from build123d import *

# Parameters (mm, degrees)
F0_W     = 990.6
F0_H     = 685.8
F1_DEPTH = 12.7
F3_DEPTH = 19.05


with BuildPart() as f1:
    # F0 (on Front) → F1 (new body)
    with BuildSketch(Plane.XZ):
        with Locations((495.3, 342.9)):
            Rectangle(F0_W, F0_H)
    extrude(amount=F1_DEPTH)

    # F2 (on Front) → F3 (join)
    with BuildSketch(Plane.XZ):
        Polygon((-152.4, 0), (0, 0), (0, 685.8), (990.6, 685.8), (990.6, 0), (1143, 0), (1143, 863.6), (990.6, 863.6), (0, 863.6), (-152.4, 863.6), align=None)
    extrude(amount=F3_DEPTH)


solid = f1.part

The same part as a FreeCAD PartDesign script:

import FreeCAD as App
import Part
import Sketcher
from FreeCAD import Vector
Q = App.Units.Quantity

doc = App.newDocument("Part")
body = doc.addObject("PartDesign::Body", "Body")

sketch1 = body.newObject("Sketcher::SketchObject", "Sketch")
sketch1.AttachmentSupport = (doc.getObject("XZ_Plane"), [""])
sketch1.MapMode = "FlatFace"
sketch1.addGeometry([
    Part.LineSegment(Vector(0, 686, 0), Vector(0, 0, 0)),
    Part.LineSegment(Vector(0, 0, 0), Vector(991, 0, 0)),
    Part.LineSegment(Vector(991, 0, 0), Vector(991, 686, 0)),
    Part.LineSegment(Vector(991, 686, 0), Vector(0, 686, 0)),
], False)
sketch1.addConstraint([
    Sketcher.Constraint("Coincident", 0, 2, 1, 1),
    Sketcher.Constraint("Coincident", 1, 2, 2, 1),
    Sketcher.Constraint("Coincident", 2, 2, 3, 1),
    Sketcher.Constraint("Coincident", 3, 2, 0, 1),
    Sketcher.Constraint("Vertical", 0),
    Sketcher.Constraint("Horizontal", 1),
    Sketcher.Constraint("Vertical", 2),
    Sketcher.Constraint("Horizontal", 3),
    Sketcher.Constraint("Coincident", 0, 2, -1, 1),
    Sketcher.Constraint("DistanceX", 1, 1, 1, 2, Q("39 in")),
    Sketcher.Constraint("DistanceY", 0, 2, 0, 1, Q("27 in")),
])
pad1 = body.newObject("PartDesign::Pad", "Pad")
pad1.Profile = sketch1
pad1.Length = Q("0.5 in")

sketch2 = body.newObject("Sketcher::SketchObject", "Sketch001")
sketch2.AttachmentSupport = (doc.getObject("XZ_Plane"), [""])
sketch2.MapMode = "FlatFace"
sketch2.addGeometry([
    Part.LineSegment(Vector(-152, 0, 0), Vector(0, 0, 0)),
    Part.LineSegment(Vector(0, 0, 0), Vector(0, 686, 0)),
    Part.LineSegment(Vector(0, 686, 0), Vector(991, 686, 0)),
    Part.LineSegment(Vector(991, 686, 0), Vector(991, 0, 0)),
    Part.LineSegment(Vector(991, 0, 0), Vector(1143, 0, 0)),
    Part.LineSegment(Vector(1143, 0, 0), Vector(1143, 864, 0)),
    Part.LineSegment(Vector(1143, 864, 0), Vector(-152, 864, 0)),
    Part.LineSegment(Vector(-152, 864, 0), Vector(-152, 0, 0)),
], False)
sketch2.addConstraint([
    Sketcher.Constraint("Coincident", 0, 2, 1, 1),
    Sketcher.Constraint("Coincident", 1, 2, 2, 1),
    Sketcher.Constraint("Coincident", 2, 2, 3, 1),
    Sketcher.Constraint("Coincident", 3, 2, 4, 1),
    Sketcher.Constraint("Coincident", 4, 2, 5, 1),
    Sketcher.Constraint("Coincident", 5, 2, 6, 1),
    Sketcher.Constraint("Coincident", 6, 2, 7, 1),
    Sketcher.Constraint("Coincident", 7, 2, 0, 1),
    Sketcher.Constraint("Horizontal", 0),
    Sketcher.Constraint("Vertical", 1),
    Sketcher.Constraint("Horizontal", 2),
    Sketcher.Constraint("Vertical", 3),
    Sketcher.Constraint("Horizontal", 4),
    Sketcher.Constraint("Vertical", 5),
    Sketcher.Constraint("Horizontal", 6),
    Sketcher.Constraint("Vertical", 7),
    Sketcher.Constraint("Coincident", 0, 2, -1, 1),
    Sketcher.Constraint("PointOnObject", 3, 2, -1),
    Sketcher.Constraint("Equal", 0, 4),
    Sketcher.Constraint("DistanceX", 0, 1, 0, 2, Q("6 in")),
    Sketcher.Constraint("DistanceX", 2, 1, 2, 2, Q("39 in")),
    Sketcher.Constraint("DistanceY", 1, 1, 1, 2, Q("27 in")),
    Sketcher.Constraint("DistanceY", 5, 1, 5, 2, Q("34 in")),
])
pad2 = body.newObject("PartDesign::Pad", "Pad001")
pad2.Profile = sketch2
pad2.Length = Q("0.75 in")

doc.recompute()
